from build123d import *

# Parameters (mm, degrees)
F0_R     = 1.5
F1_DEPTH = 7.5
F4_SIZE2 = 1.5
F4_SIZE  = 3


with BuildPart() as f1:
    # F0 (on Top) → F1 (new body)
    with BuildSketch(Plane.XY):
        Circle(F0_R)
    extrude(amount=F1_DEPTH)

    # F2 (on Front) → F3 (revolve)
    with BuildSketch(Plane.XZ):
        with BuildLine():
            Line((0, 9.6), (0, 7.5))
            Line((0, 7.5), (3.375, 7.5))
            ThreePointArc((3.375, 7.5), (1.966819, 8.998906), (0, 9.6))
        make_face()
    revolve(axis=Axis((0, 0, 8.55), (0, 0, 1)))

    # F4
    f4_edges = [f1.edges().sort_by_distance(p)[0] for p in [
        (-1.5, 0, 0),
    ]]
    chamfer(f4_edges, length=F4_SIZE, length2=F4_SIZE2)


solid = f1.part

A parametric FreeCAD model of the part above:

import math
import FreeCAD as App
import Part
import Sketcher

V = App.Vector
Q = App.Units.Quantity


def edges_at(feature, points):
    """Names of the edges that pass closest to the given points."""
    edges = feature.Shape.Edges
    near = lambda p: min(range(len(edges)), key=lambda i: edges[i].distToShape(Part.Vertex(*p))[0])
    return sorted({f"Edge{near(p) + 1}" for p in points})

doc = App.newDocument("Part")
params = doc.addObject("Spreadsheet::Sheet", "Params")
for row, (alias, value) in enumerate([
    ("sketch1_diameter", "3 mm"),
    ("pad1_length", "7.5 mm"),
    ("sketch2_radius", "4.000001 mm"),
    ("sketch2_height", "2.1 mm"),
    ("revolution_angle", "360 deg"),
    ("chamfer_size", "3 mm"),
    ("chamfer_size2", "1.5 mm"),
], start=1):
    params.set(f"A{row}", alias)
    params.set(f"B{row}", "=" + value)
    params.setAlias(f"B{row}", alias)

body = doc.addObject("PartDesign::Body", "Body")

# Sketch on XY plane
sketch1 = body.newObject("Sketcher::SketchObject", "Sketch")
sketch1.AttachmentSupport = (doc.getObject("XY_Plane"), [""])
sketch1.MapMode = "FlatFace"
sketch1.addGeometry(Part.Circle(V(0, 0, 0), V(0, 0, 1), 1.5), False)
sketch1.addConstraint(Sketcher.Constraint("Coincident", 0, 3, -1, 1))
sketch1.addConstraint(Sketcher.Constraint("Diameter", 0, Q("3 mm")))
sketch1.setExpression("Constraints[1]", "Params.sketch1_diameter")
pad1 = body.newObject("PartDesign::Pad", "Pad")
pad1.Profile = sketch1
pad1.setExpression("Length", "Params.pad1_length")

# Sketch on XZ plane
sketch2 = body.newObject("Sketcher::SketchObject", "Sketch001")
sketch2.AttachmentSupport = (doc.getObject("XZ_Plane"), [""])
sketch2.MapMode = "FlatFace"
sketch2.addGeometry(Part.LineSegment(V(0, 9.6, 0), V(0, 7.5, 0)), False)
sketch2.addGeometry(Part.LineSegment(V(0, 7.5, 0), V(3.375, 7.5, 0)), False)
sketch2.addGeometry(Part.ArcOfCircle(Part.Circle(V(-0.146389, 5.602679, 0), V(0, 0, 1), 4.000001), math.radians(28.31575), math.radians(87.902666)), False)
sketch2.addConstraint(Sketcher.Constraint("Coincident", 0, 2, 1, 1))
sketch2.addConstraint(Sketcher.Constraint("Coincident", 1, 2, 2, 1))
sketch2.addConstraint(Sketcher.Constraint("Coincident", 2, 2, 0, 1))
sketch2.addConstraint(Sketcher.Constraint("Vertical", 0))
sketch2.addConstraint(Sketcher.Constraint("Horizontal", 1))
sketch2.addConstraint(Sketcher.Constraint("PointOnObject", 0, 2, -2))
sketch2.addConstraint(Sketcher.Constraint("Radius", 2, Q("4.000001 mm")))
sketch2.addConstraint(Sketcher.Constraint("DistanceY", 0, 2, 0, 1, Q("2.1 mm")))
sketch2.addConstraint(Sketcher.Constraint("DistanceY", -1, 1, 0, 2, Q("7.5 mm")))
sketch2.addConstraint(Sketcher.Constraint("DistanceX", 1, 1, 1, 2, Q("3.375 mm")))
sketch2.setExpression("Constraints[6]", "Params.sketch2_radius")
sketch2.setExpression("Constraints[7]", "Params.sketch2_height")
revolution = body.newObject("PartDesign::Revolution", "Revolution")
revolution.Profile = sketch2
revolution.ReferenceAxis = (sketch2, ["V_Axis"])
revolution.setExpression("Angle", "Params.revolution_angle")
doc.recompute()

chamfer = body.newObject("PartDesign::Chamfer", "Chamfer")
chamfer.Base = (revolution, edges_at(revolution, [(-1.5, 0, 0)]))
chamfer.ChamferType = "Two distances"
chamfer.setExpression("Size", "Params.chamfer_size")
chamfer.setExpression("Size2", "Params.chamfer_size2")

doc.recompute()
